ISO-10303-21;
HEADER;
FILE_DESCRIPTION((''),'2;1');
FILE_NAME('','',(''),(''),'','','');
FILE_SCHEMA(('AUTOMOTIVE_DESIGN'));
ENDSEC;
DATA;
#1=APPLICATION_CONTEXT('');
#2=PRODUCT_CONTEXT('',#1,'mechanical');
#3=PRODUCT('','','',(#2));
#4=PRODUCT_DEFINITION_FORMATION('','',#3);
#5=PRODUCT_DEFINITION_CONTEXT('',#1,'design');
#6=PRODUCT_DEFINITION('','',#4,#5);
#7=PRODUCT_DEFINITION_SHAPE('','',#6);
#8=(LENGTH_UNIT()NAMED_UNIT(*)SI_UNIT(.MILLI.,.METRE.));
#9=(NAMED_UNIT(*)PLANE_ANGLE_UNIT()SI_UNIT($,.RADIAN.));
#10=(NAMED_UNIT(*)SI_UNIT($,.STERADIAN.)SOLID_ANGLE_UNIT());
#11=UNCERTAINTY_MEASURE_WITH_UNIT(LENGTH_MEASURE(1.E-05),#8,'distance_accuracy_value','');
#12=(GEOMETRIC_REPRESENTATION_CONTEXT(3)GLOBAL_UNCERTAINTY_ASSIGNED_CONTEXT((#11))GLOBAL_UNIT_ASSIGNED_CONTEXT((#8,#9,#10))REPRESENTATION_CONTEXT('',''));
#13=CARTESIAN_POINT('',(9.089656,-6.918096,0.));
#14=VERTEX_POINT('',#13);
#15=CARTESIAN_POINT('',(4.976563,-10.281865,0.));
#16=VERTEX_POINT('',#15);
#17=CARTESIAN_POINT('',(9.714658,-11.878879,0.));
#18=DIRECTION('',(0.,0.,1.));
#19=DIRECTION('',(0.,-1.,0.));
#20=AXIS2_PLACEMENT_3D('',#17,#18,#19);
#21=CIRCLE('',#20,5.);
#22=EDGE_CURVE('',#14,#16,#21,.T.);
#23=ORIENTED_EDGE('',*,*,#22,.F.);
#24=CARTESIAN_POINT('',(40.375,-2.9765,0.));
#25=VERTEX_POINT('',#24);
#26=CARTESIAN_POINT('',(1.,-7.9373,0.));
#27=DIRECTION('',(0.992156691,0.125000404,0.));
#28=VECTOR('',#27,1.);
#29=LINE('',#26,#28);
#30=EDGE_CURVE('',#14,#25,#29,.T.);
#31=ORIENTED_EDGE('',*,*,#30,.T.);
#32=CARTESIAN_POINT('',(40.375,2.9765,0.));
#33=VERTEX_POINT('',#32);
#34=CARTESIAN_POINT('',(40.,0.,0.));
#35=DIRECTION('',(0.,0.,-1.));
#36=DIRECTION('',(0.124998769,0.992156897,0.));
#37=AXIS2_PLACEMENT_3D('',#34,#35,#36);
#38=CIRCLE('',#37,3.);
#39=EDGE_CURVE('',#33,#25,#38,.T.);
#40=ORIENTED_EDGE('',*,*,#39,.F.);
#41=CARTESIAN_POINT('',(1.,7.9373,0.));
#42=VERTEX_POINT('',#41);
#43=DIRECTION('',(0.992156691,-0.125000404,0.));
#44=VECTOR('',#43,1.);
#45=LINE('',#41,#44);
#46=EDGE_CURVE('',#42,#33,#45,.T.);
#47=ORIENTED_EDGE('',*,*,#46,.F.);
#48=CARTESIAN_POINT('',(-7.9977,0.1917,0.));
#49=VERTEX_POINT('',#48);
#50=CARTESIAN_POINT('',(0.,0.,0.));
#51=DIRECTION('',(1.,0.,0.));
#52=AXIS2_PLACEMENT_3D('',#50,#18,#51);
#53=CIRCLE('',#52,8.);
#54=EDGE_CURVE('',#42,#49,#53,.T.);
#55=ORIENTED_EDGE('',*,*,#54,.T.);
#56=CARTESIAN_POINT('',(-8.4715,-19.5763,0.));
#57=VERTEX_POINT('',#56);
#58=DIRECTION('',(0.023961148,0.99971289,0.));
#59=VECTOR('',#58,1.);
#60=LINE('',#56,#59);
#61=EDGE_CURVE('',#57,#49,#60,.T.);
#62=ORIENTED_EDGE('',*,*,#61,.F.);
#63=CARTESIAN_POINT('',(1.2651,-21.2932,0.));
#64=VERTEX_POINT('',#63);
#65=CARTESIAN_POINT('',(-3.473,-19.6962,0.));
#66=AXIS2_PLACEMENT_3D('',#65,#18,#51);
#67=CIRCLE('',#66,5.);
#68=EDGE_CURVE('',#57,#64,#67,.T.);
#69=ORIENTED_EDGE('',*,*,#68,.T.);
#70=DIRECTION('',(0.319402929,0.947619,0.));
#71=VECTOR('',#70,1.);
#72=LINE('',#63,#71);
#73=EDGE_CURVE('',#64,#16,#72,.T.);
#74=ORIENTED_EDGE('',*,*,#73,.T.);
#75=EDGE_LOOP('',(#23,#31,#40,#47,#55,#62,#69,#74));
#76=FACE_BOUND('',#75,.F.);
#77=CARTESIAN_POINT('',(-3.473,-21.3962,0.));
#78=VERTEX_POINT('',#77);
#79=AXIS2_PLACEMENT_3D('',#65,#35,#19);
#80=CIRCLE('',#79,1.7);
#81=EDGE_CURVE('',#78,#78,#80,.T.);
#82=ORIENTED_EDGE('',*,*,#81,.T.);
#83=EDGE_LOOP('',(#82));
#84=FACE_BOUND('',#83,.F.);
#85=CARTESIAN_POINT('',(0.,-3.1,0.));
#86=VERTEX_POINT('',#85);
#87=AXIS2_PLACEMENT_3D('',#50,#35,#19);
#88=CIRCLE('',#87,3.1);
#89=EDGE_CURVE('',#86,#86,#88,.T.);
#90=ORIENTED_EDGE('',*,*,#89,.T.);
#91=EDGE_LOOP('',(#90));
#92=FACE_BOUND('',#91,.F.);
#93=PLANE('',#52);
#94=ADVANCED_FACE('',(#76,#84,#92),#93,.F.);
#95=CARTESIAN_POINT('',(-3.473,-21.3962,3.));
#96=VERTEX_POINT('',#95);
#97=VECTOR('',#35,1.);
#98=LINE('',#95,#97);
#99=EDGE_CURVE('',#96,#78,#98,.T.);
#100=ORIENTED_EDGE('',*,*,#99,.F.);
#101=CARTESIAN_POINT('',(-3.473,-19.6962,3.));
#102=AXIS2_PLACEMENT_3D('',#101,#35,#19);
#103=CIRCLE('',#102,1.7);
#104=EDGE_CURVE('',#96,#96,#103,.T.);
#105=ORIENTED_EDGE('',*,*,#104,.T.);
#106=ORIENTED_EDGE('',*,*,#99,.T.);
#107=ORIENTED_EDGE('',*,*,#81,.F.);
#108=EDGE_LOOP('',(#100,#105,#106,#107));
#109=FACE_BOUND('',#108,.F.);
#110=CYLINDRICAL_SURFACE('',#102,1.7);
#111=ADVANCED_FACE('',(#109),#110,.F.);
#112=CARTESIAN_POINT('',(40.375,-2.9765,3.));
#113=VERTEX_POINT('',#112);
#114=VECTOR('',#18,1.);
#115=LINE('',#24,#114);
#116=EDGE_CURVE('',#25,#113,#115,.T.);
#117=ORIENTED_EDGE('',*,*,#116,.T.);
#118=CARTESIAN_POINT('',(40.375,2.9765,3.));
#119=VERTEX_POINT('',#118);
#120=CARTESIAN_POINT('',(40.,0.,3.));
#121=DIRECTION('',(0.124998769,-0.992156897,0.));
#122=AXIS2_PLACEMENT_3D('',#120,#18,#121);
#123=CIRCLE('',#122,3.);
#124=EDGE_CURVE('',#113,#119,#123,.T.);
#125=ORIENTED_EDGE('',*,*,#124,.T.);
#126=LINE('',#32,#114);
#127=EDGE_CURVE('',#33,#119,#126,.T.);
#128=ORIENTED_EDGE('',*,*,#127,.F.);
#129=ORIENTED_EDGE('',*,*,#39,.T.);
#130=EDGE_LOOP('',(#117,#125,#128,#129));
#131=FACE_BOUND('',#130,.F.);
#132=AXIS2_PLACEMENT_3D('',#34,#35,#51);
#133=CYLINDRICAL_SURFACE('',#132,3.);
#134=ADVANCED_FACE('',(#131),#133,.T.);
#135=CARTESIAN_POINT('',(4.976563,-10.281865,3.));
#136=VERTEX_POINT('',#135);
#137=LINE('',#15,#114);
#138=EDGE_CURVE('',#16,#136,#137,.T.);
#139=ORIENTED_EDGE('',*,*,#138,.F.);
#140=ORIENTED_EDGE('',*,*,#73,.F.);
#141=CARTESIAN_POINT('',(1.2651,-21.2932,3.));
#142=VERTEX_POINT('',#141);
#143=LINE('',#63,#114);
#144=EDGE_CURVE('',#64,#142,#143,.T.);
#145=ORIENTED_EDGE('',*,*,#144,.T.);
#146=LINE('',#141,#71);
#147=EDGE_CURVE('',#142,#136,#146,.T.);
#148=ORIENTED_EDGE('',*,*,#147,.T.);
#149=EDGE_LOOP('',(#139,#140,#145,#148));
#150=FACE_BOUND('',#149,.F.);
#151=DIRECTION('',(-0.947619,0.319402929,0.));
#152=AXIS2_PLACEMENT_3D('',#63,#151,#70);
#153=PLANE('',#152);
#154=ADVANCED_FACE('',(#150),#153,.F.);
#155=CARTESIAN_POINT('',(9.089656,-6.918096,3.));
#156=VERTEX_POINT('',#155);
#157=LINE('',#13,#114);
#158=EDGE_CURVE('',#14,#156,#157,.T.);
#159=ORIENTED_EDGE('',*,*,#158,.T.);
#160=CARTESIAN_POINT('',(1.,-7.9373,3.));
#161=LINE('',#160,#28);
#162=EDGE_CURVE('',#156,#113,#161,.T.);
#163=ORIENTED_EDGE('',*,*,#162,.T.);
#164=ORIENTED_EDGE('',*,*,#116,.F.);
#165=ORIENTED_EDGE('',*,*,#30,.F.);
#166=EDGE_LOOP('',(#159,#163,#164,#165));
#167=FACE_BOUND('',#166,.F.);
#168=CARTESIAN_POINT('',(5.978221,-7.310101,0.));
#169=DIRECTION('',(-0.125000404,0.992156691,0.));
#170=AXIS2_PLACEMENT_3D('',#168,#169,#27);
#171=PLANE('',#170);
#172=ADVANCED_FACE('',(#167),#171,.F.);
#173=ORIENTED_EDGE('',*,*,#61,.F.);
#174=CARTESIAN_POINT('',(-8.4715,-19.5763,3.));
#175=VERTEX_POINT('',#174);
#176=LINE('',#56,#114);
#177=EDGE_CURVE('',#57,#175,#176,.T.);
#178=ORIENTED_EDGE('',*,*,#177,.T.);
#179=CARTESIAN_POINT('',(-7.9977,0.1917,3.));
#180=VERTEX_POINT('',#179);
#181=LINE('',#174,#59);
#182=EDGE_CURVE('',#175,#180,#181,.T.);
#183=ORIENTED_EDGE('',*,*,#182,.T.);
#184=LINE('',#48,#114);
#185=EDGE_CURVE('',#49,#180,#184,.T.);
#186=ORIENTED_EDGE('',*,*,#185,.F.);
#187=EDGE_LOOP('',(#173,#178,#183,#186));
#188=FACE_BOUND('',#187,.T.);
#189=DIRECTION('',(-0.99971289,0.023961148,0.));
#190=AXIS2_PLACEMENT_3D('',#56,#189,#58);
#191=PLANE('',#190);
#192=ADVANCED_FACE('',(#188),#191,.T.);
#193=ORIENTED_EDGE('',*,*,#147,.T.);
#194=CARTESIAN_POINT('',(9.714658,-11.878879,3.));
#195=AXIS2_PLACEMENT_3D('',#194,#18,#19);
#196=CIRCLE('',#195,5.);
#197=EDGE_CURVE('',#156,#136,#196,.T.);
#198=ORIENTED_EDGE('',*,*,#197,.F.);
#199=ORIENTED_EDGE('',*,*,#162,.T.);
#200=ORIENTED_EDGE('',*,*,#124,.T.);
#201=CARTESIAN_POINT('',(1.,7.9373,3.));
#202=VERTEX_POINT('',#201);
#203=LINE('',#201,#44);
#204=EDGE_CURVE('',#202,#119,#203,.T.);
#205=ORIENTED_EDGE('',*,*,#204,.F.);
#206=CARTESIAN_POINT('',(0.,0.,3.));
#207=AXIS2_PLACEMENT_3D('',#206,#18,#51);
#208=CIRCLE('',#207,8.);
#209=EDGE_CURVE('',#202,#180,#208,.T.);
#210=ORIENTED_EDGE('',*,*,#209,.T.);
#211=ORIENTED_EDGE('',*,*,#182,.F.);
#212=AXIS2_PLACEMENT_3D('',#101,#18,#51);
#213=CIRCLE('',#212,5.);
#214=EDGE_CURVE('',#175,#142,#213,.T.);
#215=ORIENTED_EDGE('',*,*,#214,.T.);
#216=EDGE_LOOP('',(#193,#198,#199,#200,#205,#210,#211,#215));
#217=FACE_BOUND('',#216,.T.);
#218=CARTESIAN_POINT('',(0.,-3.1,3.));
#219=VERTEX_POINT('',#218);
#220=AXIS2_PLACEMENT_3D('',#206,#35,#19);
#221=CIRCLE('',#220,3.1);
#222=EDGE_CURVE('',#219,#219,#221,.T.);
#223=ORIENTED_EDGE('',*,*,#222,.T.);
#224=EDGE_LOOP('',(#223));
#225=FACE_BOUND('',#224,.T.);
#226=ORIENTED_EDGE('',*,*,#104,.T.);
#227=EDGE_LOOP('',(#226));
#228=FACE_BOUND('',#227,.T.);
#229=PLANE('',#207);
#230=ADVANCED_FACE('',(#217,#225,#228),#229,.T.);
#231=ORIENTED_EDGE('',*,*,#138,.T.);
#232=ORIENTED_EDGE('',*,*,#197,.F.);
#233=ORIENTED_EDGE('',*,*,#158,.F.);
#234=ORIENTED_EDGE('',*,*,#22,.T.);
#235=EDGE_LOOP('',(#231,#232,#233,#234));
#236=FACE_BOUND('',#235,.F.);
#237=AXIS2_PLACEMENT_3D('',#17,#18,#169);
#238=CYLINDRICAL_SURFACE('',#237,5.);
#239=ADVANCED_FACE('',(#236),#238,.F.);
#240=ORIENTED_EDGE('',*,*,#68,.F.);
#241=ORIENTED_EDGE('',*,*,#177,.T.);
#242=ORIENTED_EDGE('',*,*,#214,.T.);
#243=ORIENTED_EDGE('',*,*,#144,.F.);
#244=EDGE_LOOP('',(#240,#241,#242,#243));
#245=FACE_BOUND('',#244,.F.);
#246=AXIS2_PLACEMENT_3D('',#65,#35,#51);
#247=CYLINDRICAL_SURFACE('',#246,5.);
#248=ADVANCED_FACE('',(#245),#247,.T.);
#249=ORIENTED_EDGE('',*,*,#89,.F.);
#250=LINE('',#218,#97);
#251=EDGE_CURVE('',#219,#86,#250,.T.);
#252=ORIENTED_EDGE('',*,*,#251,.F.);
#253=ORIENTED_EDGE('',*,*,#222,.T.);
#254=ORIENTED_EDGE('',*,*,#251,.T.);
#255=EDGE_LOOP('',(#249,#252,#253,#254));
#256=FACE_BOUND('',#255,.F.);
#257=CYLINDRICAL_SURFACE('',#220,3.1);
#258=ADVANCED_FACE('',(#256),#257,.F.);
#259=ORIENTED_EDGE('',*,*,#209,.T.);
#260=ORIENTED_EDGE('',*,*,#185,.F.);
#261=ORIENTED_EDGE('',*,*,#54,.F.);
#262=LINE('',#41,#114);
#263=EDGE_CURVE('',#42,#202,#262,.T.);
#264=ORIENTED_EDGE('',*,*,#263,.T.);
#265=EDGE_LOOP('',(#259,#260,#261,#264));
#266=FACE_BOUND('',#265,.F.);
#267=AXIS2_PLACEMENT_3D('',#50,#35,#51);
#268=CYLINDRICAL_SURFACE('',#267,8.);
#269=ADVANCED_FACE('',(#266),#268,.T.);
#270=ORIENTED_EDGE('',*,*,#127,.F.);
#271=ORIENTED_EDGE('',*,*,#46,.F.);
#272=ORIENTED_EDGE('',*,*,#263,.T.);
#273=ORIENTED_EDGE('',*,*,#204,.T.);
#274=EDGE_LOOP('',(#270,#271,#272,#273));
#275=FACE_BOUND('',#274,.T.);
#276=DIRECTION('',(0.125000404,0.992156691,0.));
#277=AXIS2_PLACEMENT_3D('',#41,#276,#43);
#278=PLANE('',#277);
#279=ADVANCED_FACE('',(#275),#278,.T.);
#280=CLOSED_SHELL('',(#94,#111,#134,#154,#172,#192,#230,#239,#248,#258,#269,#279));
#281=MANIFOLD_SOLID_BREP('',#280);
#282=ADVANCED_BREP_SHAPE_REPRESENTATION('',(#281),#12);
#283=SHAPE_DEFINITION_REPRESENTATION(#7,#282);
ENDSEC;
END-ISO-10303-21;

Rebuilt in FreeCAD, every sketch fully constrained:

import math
import FreeCAD as App
import Part
import Sketcher


def edges_at(feature, points):
    """Names of the edges that pass closest to the given points."""
    edges = feature.Shape.Edges
    near = lambda p: min(range(len(edges)), key=lambda i: edges[i].distToShape(Part.Vertex(*p))[0])
    return sorted({f"Edge{near(p) + 1}" for p in points})

doc = App.newDocument("Part")
body = doc.addObject("PartDesign::Body", "Body")

# Sketch on XY plane
sketch1 = doc.addObject("Sketcher::SketchObject", "Sketch")
body.addObject(sketch1)
sketch1.AttachmentSupport = (doc.XY_Plane, [""])
sketch1.MapMode = "FlatFace"
sketch1.addGeometry([
    Part.ArcOfCircle(Part.Circle(App.Vector(0, 0, 0), App.Vector(0, 0, 1), 8), math.radians(82.819285), math.radians(178.626918)),  # 0
    Part.LineSegment(App.Vector(-7.9977, 0.1917, 0), App.Vector(-8.4715, -19.5763, 0)),  # 1
    Part.ArcOfCircle(Part.Circle(App.Vector(-3.473, -19.6962, 0), App.Vector(0, 0, 1), 5), math.radians(178.625898), math.radians(341.373357)),  # 2
    Part.LineSegment(App.Vector(1.2651, -21.2932, 0), App.Vector(5.978221, -7.310101, 0)),  # 3
    Part.LineSegment(App.Vector(5.978221, -7.310101, 0), App.Vector(40.375, -2.9765, 0)),  # 4
    Part.ArcOfCircle(Part.Circle(App.Vector(40, 0, 0), App.Vector(0, 0, 1), 3), math.radians(-82.819315), math.radians(82.819315)),  # 5
    Part.LineSegment(App.Vector(40.375, 2.9765, 0), App.Vector(1, 7.9373, 0)),  # 6
], False)
sketch1.addConstraint([
    Sketcher.Constraint("Coincident", 0, 2, 1, 1),
    Sketcher.Constraint("Coincident", 1, 2, 2, 1),
    Sketcher.Constraint("Coincident", 2, 2, 3, 1),
    Sketcher.Constraint("Coincident", 3, 2, 4, 1),
    Sketcher.Constraint("Coincident", 4, 2, 5, 1),
    Sketcher.Constraint("Coincident", 5, 2, 6, 1),
    Sketcher.Constraint("Coincident", 6, 2, 0, 1),
    Sketcher.Constraint("Coincident", 0, 3, -1, 1),
    Sketcher.Constraint("PointOnObject", 5, 3, -1),
    Sketcher.Constraint("Radius", 0, 8.0),
    Sketcher.Constraint("Radius", 2, 5.0),
    Sketcher.Constraint("Radius", 5, 3.0),
    Sketcher.Constraint("DistanceX", -1, 1, 5, 3, 40.0),
    Sketcher.Constraint("DistanceX", -1, 1, 6, 2, 1.0),
    Sketcher.Constraint("DistanceY", 3, 2, -1, 1, 7.31),
    Sketcher.Constraint("DistanceY", 2, 3, 1, 2, 0.12),
    Sketcher.Constraint("DistanceX", 2, 2, 4, 2, 39.11),
    Sketcher.Constraint("DistanceX", 2, 2, 5, 2, 39.11),
    Sketcher.Constraint("Distance", 3, 14.756),
    Sketcher.Constraint("DistanceX", 2, 3, -1, 1, 3.473),
    Sketcher.Constraint("DistanceX", -1, 1, 2, 2, 1.265),
    Sketcher.Constraint("DistanceY", 2, 3, 0, 2, 19.888),
    Sketcher.Constraint("DistanceY", 2, 2, 3, 2, 13.983),
])
pad1 = doc.addObject("PartDesign::Pad", "Pad")
body.addObject(pad1)
pad1.Profile = sketch1
pad1.Length = 3
doc.recompute()

fillet = doc.addObject("PartDesign::Fillet", "Fillet")
body.addObject(fillet)
fillet.Base = (pad1, edges_at(pad1, [(5.978, -7.31, 1.5)]))
fillet.Radius = 5

# Sketch on XY plane
sketch2 = doc.addObject("Sketcher::SketchObject", "Sketch001")
body.addObject(sketch2)
sketch2.AttachmentSupport = (doc.XY_Plane, [""])
sketch2.MapMode = "FlatFace"
sketch2.AttachmentOffset = App.Placement(App.Vector(0, 0, 3), App.Rotation())
sketch2.addGeometry(Part.Circle(App.Vector(0, 0, 0), App.Vector(0, 0, 1), 3.1), False)
sketch2.addConstraint([
    Sketcher.Constraint("Coincident", 0, 3, -1, 1),
    Sketcher.Constraint("Diameter", 0, 6.2),
])
doc.recompute()
hole = doc.addObject("PartDesign::Hole", "Hole")
body.addObject(hole)
hole.Profile = sketch2
hole.ThreadType = "None"
hole.Diameter = 6.2
hole.DepthType = "ThroughAll"

# Sketch on XY plane
sketch3 = doc.addObject("Sketcher::SketchObject", "Sketch002")
body.addObject(sketch3)
sketch3.AttachmentSupport = (doc.XY_Plane, [""])
sketch3.MapMode = "FlatFace"
sketch3.AttachmentOffset = App.Placement(App.Vector(0, 0, 3), App.Rotation())
sketch3.addGeometry(Part.Circle(App.Vector(-3.473, -19.6962, 0), App.Vector(0, 0, 1), 1.7), False)
sketch3.addConstraint([
    Sketcher.Constraint("Diameter", 0, 3.4),
    Sketcher.Constraint("DistanceX", 0, 3, -1, 1, 3.473),
    Sketcher.Constraint("DistanceY", 0, 3, -1, 1, 19.6962),
])
doc.recompute()
hole2 = doc.addObject("PartDesign::Hole", "Hole001")
body.addObject(hole2)
hole2.Profile = sketch3
hole2.ThreadType = "None"
hole2.Diameter = 3.4
hole2.DepthType = "ThroughAll"

doc.recompute()
